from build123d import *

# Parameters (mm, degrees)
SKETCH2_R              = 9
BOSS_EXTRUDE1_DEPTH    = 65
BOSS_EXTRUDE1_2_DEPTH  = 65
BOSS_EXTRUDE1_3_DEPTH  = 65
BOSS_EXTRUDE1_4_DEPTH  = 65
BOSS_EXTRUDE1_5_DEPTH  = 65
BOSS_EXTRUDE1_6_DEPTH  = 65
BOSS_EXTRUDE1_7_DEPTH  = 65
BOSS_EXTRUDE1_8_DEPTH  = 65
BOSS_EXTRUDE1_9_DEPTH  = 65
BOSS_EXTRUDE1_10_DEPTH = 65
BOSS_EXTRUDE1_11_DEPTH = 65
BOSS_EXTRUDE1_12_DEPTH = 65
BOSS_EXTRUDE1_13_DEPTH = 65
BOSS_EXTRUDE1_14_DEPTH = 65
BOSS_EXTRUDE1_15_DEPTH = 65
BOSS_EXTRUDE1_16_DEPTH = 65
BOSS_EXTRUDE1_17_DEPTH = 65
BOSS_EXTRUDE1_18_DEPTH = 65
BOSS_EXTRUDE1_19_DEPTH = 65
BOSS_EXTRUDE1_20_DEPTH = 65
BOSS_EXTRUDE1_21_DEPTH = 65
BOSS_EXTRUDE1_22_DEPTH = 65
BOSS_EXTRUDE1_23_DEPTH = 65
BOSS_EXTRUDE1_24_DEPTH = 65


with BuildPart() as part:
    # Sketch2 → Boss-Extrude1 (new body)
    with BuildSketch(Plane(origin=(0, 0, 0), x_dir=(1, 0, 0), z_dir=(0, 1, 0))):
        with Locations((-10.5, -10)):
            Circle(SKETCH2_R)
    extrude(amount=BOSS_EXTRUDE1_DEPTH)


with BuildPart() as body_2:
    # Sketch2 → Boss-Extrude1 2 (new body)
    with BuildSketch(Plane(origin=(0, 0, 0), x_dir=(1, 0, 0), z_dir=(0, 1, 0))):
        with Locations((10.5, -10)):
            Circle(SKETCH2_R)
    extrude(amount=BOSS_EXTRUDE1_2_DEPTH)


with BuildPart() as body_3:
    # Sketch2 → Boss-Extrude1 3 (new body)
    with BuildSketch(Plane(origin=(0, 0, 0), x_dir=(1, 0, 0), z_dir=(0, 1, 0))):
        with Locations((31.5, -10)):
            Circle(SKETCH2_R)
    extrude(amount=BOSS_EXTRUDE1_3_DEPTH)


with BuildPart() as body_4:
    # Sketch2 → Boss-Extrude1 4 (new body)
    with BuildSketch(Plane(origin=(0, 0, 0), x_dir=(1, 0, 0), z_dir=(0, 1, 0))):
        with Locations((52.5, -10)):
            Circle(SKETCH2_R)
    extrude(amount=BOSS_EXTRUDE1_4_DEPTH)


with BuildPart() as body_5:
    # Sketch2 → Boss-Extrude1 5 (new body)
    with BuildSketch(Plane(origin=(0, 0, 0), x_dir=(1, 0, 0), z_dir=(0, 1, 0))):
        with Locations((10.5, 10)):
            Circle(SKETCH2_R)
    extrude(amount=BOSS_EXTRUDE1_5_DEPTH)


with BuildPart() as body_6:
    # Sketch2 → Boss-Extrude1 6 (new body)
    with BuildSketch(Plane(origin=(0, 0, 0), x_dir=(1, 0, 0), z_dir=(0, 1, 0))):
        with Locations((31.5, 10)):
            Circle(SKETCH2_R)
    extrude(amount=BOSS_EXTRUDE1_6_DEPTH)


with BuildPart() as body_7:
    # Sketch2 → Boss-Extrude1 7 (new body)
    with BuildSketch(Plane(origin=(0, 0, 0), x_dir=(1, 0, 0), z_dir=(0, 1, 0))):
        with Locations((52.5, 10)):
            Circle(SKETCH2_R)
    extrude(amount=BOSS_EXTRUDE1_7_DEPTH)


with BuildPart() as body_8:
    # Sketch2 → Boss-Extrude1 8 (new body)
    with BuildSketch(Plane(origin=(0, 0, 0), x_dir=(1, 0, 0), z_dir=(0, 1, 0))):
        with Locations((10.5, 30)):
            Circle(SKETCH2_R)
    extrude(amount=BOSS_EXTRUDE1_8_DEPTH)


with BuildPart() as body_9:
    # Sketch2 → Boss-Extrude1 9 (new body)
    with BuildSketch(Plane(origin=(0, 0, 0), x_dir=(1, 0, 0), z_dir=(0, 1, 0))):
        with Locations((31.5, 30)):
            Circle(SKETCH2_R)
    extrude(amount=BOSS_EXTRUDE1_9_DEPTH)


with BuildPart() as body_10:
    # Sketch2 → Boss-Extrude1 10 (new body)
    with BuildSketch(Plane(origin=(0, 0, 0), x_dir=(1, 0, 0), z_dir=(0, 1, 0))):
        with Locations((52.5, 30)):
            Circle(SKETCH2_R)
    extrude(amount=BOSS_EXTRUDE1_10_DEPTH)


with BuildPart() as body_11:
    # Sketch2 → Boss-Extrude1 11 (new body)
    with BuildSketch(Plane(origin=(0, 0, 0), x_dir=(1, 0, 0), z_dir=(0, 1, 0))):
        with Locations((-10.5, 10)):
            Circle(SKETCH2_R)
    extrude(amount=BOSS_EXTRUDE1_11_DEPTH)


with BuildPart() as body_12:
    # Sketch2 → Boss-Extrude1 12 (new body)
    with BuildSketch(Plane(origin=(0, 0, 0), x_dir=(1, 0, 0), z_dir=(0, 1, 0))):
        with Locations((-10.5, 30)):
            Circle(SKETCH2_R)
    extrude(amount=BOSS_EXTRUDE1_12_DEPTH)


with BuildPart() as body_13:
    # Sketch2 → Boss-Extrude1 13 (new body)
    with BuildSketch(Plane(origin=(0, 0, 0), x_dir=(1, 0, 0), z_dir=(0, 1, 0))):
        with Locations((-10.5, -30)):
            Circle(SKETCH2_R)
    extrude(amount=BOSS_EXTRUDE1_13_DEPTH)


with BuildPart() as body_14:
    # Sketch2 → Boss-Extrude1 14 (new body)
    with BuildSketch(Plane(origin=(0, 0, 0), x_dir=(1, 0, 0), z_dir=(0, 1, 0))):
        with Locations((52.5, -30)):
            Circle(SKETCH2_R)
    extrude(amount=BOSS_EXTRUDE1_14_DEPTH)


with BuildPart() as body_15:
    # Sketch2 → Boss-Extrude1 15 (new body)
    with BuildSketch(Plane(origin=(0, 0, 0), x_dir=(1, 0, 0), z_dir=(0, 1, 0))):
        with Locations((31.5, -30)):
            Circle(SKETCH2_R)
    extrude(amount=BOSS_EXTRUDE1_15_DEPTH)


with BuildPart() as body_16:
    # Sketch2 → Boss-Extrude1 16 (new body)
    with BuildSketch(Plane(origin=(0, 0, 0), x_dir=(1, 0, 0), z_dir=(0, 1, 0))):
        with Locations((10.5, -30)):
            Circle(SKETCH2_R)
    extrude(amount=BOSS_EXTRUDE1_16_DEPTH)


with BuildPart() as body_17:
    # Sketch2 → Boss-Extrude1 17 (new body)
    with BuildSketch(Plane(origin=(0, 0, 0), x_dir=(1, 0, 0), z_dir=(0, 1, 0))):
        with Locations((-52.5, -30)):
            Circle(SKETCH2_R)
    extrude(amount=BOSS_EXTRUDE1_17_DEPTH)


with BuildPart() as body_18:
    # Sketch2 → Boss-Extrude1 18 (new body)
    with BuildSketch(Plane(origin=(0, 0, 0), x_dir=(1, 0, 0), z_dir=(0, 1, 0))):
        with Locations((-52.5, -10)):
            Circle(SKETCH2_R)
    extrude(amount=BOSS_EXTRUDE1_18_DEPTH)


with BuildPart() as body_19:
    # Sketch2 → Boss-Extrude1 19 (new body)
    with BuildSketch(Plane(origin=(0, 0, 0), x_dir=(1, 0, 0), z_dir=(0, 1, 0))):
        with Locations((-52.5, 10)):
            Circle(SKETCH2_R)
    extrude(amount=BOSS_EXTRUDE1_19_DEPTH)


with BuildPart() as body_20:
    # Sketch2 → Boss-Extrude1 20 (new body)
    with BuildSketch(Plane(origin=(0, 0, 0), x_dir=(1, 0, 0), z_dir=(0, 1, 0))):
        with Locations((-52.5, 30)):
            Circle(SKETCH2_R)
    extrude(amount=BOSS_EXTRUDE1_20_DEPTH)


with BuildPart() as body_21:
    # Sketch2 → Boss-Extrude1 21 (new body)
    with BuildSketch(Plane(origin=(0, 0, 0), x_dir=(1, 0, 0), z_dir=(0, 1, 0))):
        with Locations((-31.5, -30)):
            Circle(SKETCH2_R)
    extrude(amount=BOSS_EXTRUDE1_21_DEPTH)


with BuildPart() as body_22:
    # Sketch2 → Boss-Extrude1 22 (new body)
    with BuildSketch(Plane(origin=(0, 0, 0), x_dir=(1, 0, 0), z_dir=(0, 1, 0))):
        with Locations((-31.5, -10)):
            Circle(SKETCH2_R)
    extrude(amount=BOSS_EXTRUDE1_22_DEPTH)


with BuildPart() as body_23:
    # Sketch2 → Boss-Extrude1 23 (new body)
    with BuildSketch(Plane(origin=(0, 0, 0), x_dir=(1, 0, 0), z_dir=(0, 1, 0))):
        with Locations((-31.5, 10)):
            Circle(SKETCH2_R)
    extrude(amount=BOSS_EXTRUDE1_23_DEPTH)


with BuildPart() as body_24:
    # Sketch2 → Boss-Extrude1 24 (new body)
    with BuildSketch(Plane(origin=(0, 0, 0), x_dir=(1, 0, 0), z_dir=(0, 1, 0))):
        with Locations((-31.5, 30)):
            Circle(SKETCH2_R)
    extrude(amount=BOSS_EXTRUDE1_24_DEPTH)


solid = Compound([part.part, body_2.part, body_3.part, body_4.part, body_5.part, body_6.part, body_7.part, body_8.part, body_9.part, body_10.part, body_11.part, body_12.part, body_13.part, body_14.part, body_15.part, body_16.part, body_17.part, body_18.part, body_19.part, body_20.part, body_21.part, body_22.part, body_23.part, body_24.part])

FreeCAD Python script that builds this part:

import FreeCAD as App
import Part
import Sketcher

doc = App.newDocument("Part")
body = doc.addObject("PartDesign::Body", "Body")

sketch1 = doc.addObject("Sketcher::SketchObject", "Sketch")
body.addObject(sketch1)
sketch1.AttachmentSupport = (doc.XZ_Plane, [""])
sketch1.MapMode = "FlatFace"
sketch1.addGeometry(Part.Circle(App.Vector(-10, 10, 0), App.Vector(0, 0, 1), 9), False)
sketch1.addConstraint([
    Sketcher.Constraint("Diameter", 0, 18.0),
    Sketcher.Constraint("DistanceY", -1, 1, 0, 3, 10.0),
    Sketcher.Constraint("DistanceX", 0, 3, -1, 1, 10.5),
])
pad1 = doc.addObject("PartDesign::Pad", "Pad")
body.addObject(pad1)
pad1.Profile = sketch1
pad1.Length = 65
pad1.Reversed = True
body2 = doc.addObject("PartDesign::Body", "Body001")

sketch2 = doc.addObject("Sketcher::SketchObject", "Sketch001")
body2.addObject(sketch2)
sketch2.AttachmentSupport = (doc.getObject("XZ_Plane001"), [""])
sketch2.MapMode = "FlatFace"
sketch2.addGeometry(Part.Circle(App.Vector(10, 10, 0), App.Vector(0, 0, 1), 9), False)
sketch2.addConstraint([
    Sketcher.Constraint("Diameter", 0, 18.0),
    Sketcher.Constraint("DistanceY", -1, 1, 0, 3, 10.0),
    Sketcher.Constraint("DistanceX", -1, 1, 0, 3, 10.5),
])
pad2 = doc.addObject("PartDesign::Pad", "Pad001")
body2.addObject(pad2)
pad2.Profile = sketch2
pad2.Length = 65
pad2.Reversed = True
body3 = doc.addObject("PartDesign::Body", "Body002")

sketch3 = doc.addObject("Sketcher::SketchObject", "Sketch002")
body3.addObject(sketch3)
sketch3.AttachmentSupport = (doc.getObject("XZ_Plane002"), [""])
sketch3.MapMode = "FlatFace"
sketch3.addGeometry(Part.Circle(App.Vector(32, 10, 0), App.Vector(0, 0, 1), 9), False)
sketch3.addConstraint([
    Sketcher.Constraint("Diameter", 0, 18.0),
    Sketcher.Constraint("DistanceY", -1, 1, 0, 3, 10.0),
    Sketcher.Constraint("DistanceX", -1, 1, 0, 3, 31.5),
])
pad3 = doc.addObject("PartDesign::Pad", "Pad002")
body3.addObject(pad3)
pad3.Profile = sketch3
pad3.Length = 65
pad3.Reversed = True
body4 = doc.addObject("PartDesign::Body", "Body003")

sketch4 = doc.addObject("Sketcher::SketchObject", "Sketch003")
body4.addObject(sketch4)
sketch4.AttachmentSupport = (doc.getObject("XZ_Plane003"), [""])
sketch4.MapMode = "FlatFace"
sketch4.addGeometry(Part.Circle(App.Vector(52, 10, 0), App.Vector(0, 0, 1), 9), False)
sketch4.addConstraint([
    Sketcher.Constraint("Diameter", 0, 18.0),
    Sketcher.Constraint("DistanceY", -1, 1, 0, 3, 10.0),
    Sketcher.Constraint("DistanceX", -1, 1, 0, 3, 52.5),
])
pad4 = doc.addObject("PartDesign::Pad", "Pad003")
body4.addObject(pad4)
pad4.Profile = sketch4
pad4.Length = 65
pad4.Reversed = True
body5 = doc.addObject("PartDesign::Body", "Body004")

sketch5 = doc.addObject("Sketcher::SketchObject", "Sketch004")
body5.addObject(sketch5)
sketch5.AttachmentSupport = (doc.getObject("XZ_Plane004"), [""])
sketch5.MapMode = "FlatFace"
sketch5.addGeometry(Part.Circle(App.Vector(10, -10, 0), App.Vector(0, 0, 1), 9), False)
sketch5.addConstraint([
    Sketcher.Constraint("Diameter", 0, 18.0),
    Sketcher.Constraint("DistanceY", 0, 3, -1, 1, 10.0),
    Sketcher.Constraint("DistanceX", -1, 1, 0, 3, 10.5),
])
pad5 = doc.addObject("PartDesign::Pad", "Pad004")
body5.addObject(pad5)
pad5.Profile = sketch5
pad5.Length = 65
pad5.Reversed = True
body6 = doc.addObject("PartDesign::Body", "Body005")

sketch6 = doc.addObject("Sketcher::SketchObject", "Sketch005")
body6.addObject(sketch6)
sketch6.AttachmentSupport = (doc.getObject("XZ_Plane005"), [""])
sketch6.MapMode = "FlatFace"
sketch6.addGeometry(Part.Circle(App.Vector(32, -10, 0), App.Vector(0, 0, 1), 9), False)
sketch6.addConstraint([
    Sketcher.Constraint("Diameter", 0, 18.0),
    Sketcher.Constraint("DistanceY", 0, 3, -1, 1, 10.0),
    Sketcher.Constraint("DistanceX", -1, 1, 0, 3, 31.5),
])
pad6 = doc.addObject("PartDesign::Pad", "Pad005")
body6.addObject(pad6)
pad6.Profile = sketch6
pad6.Length = 65
pad6.Reversed = True
body7 = doc.addObject("PartDesign::Body", "Body006")

sketch7 = doc.addObject("Sketcher::SketchObject", "Sketch006")
body7.addObject(sketch7)
sketch7.AttachmentSupport = (doc.getObject("XZ_Plane006"), [""])
sketch7.MapMode = "FlatFace"
sketch7.addGeometry(Part.Circle(App.Vector(52, -10, 0), App.Vector(0, 0, 1), 9), False)
sketch7.addConstraint([
    Sketcher.Constraint("Diameter", 0, 18.0),
    Sketcher.Constraint("DistanceY", 0, 3, -1, 1, 10.0),
    Sketcher.Constraint("DistanceX", -1, 1, 0, 3, 52.5),
])
pad7 = doc.addObject("PartDesign::Pad", "Pad006")
body7.addObject(pad7)
pad7.Profile = sketch7
pad7.Length = 65
pad7.Reversed = True
body8 = doc.addObject("PartDesign::Body", "Body007")

sketch8 = doc.addObject("Sketcher::SketchObject", "Sketch007")
body8.addObject(sketch8)
sketch8.AttachmentSupport = (doc.getObject("XZ_Plane007"), [""])
sketch8.MapMode = "FlatFace"
sketch8.addGeometry(Part.Circle(App.Vector(10, -30, 0), App.Vector(0, 0, 1), 9), False)
sketch8.addConstraint([
    Sketcher.Constraint("Diameter", 0, 18.0),
    Sketcher.Constraint("DistanceY", 0, 3, -1, 1, 30.0),
    Sketcher.Constraint("DistanceX", -1, 1, 0, 3, 10.5),
])
pad8 = doc.addObject("PartDesign::Pad", "Pad007")
body8.addObject(pad8)
pad8.Profile = sketch8
pad8.Length = 65
pad8.Reversed = True
body9 = doc.addObject("PartDesign::Body", "Body008")

sketch9 = doc.addObject("Sketcher::SketchObject", "Sketch008")
body9.addObject(sketch9)
sketch9.AttachmentSupport = (doc.getObject("XZ_Plane008"), [""])
sketch9.MapMode = "FlatFace"
sketch9.addGeometry(Part.Circle(App.Vector(32, -30, 0), App.Vector(0, 0, 1), 9), False)
sketch9.addConstraint([
    Sketcher.Constraint("Diameter", 0, 18.0),
    Sketcher.Constraint("DistanceY", 0, 3, -1, 1, 30.0),
    Sketcher.Constraint("DistanceX", -1, 1, 0, 3, 31.5),
])
pad9 = doc.addObject("PartDesign::Pad", "Pad008")
body9.addObject(pad9)
pad9.Profile = sketch9
pad9.Length = 65
pad9.Reversed = True
body10 = doc.addObject("PartDesign::Body", "Body009")

sketch10 = doc.addObject("Sketcher::SketchObject", "Sketch009")
body10.addObject(sketch10)
sketch10.AttachmentSupport = (doc.getObject("XZ_Plane009"), [""])
sketch10.MapMode = "FlatFace"
sketch10.addGeometry(Part.Circle(App.Vector(52, -30, 0), App.Vector(0, 0, 1), 9), False)
sketch10.addConstraint([
    Sketcher.Constraint("Diameter", 0, 18.0),
    Sketcher.Constraint("DistanceY", 0, 3, -1, 1, 30.0),
    Sketcher.Constraint("DistanceX", -1, 1, 0, 3, 52.5),
])
pad10 = doc.addObject("PartDesign::Pad", "Pad009")
body10.addObject(pad10)
pad10.Profile = sketch10
pad10.Length = 65
pad10.Reversed = True
body11 = doc.addObject("PartDesign::Body", "Body010")

sketch11 = doc.addObject("Sketcher::SketchObject", "Sketch010")
body11.addObject(sketch11)
sketch11.AttachmentSupport = (doc.getObject("XZ_Plane010"), [""])
sketch11.MapMode = "FlatFace"
sketch11.addGeometry(Part.Circle(App.Vector(-10, -10, 0), App.Vector(0, 0, 1), 9), False)
sketch11.addConstraint([
    Sketcher.Constraint("Diameter", 0, 18.0),
    Sketcher.Constraint("DistanceY", 0, 3, -1, 1, 10.0),
    Sketcher.Constraint("DistanceX", 0, 3, -1, 1, 10.5),
])
pad11 = doc.addObject("PartDesign::Pad", "Pad010")
body11.addObject(pad11)
pad11.Profile = sketch11
pad11.Length = 65
pad11.Reversed = True
body12 = doc.addObject("PartDesign::Body", "Body011")

sketch12 = doc.addObject("Sketcher::SketchObject", "Sketch011")
body12.addObject(sketch12)
sketch12.AttachmentSupport = (doc.getObject("XZ_Plane011"), [""])
sketch12.MapMode = "FlatFace"
sketch12.addGeometry(Part.Circle(App.Vector(-10, -30, 0), App.Vector(0, 0, 1), 9), False)
sketch12.addConstraint([
    Sketcher.Constraint("Diameter", 0, 18.0),
    Sketcher.Constraint("DistanceY", 0, 3, -1, 1, 30.0),
    Sketcher.Constraint("DistanceX", 0, 3, -1, 1, 10.5),
])
pad12 = doc.addObject("PartDesign::Pad", "Pad011")
body12.addObject(pad12)
pad12.Profile = sketch12
pad12.Length = 65
pad12.Reversed = True
body13 = doc.addObject("PartDesign::Body", "Body012")

sketch13 = doc.addObject("Sketcher::SketchObject", "Sketch012")
body13.addObject(sketch13)
sketch13.AttachmentSupport = (doc.getObject("XZ_Plane012"), [""])
sketch13.MapMode = "FlatFace"
sketch13.addGeometry(Part.Circle(App.Vector(-10, 30, 0), App.Vector(0, 0, 1), 9), False)
sketch13.addConstraint([
    Sketcher.Constraint("Diameter", 0, 18.0),
    Sketcher.Constraint("DistanceY", -1, 1, 0, 3, 30.0),
    Sketcher.Constraint("DistanceX", 0, 3, -1, 1, 10.5),
])
pad13 = doc.addObject("PartDesign::Pad", "Pad012")
body13.addObject(pad13)
pad13.Profile = sketch13
pad13.Length = 65
pad13.Reversed = True
body14 = doc.addObject("PartDesign::Body", "Body013")

sketch14 = doc.addObject("Sketcher::SketchObject", "Sketch013")
body14.addObject(sketch14)
sketch14.AttachmentSupport = (doc.getObject("XZ_Plane013"), [""])
sketch14.MapMode = "FlatFace"
sketch14.addGeometry(Part.Circle(App.Vector(52, 30, 0), App.Vector(0, 0, 1), 9), False)
sketch14.addConstraint([
    Sketcher.Constraint("Diameter", 0, 18.0),
    Sketcher.Constraint("DistanceY", -1, 1, 0, 3, 30.0),
    Sketcher.Constraint("DistanceX", -1, 1, 0, 3, 52.5),
])
pad14 = doc.addObject("PartDesign::Pad", "Pad013")
body14.addObject(pad14)
pad14.Profile = sketch14
pad14.Length = 65
pad14.Reversed = True
body15 = doc.addObject("PartDesign::Body", "Body014")

sketch15 = doc.addObject("Sketcher::SketchObject", "Sketch014")
body15.addObject(sketch15)
sketch15.AttachmentSupport = (doc.getObject("XZ_Plane014"), [""])
sketch15.MapMode = "FlatFace"
sketch15.addGeometry(Part.Circle(App.Vector(32, 30, 0), App.Vector(0, 0, 1), 9), False)
sketch15.addConstraint([
    Sketcher.Constraint("Diameter", 0, 18.0),
    Sketcher.Constraint("DistanceY", -1, 1, 0, 3, 30.0),
    Sketcher.Constraint("DistanceX", -1, 1, 0, 3, 31.5),
])
pad15 = doc.addObject("PartDesign::Pad", "Pad014")
body15.addObject(pad15)
pad15.Profile = sketch15
pad15.Length = 65
pad15.Reversed = True
body16 = doc.addObject("PartDesign::Body", "Body015")

sketch16 = doc.addObject("Sketcher::SketchObject", "Sketch015")
body16.addObject(sketch16)
sketch16.AttachmentSupport = (doc.getObject("XZ_Plane015"), [""])
sketch16.MapMode = "FlatFace"
sketch16.addGeometry(Part.Circle(App.Vector(10, 30, 0), App.Vector(0, 0, 1), 9), False)
sketch16.addConstraint([
    Sketcher.Constraint("Diameter", 0, 18.0),
    Sketcher.Constraint("DistanceY", -1, 1, 0, 3, 30.0),
    Sketcher.Constraint("DistanceX", -1, 1, 0, 3, 10.5),
])
pad16 = doc.addObject("PartDesign::Pad", "Pad015")
body16.addObject(pad16)
pad16.Profile = sketch16
pad16.Length = 65
pad16.Reversed = True
body17 = doc.addObject("PartDesign::Body", "Body016")

sketch17 = doc.addObject("Sketcher::SketchObject", "Sketch016")
body17.addObject(sketch17)
sketch17.AttachmentSupport = (doc.getObject("XZ_Plane016"), [""])
sketch17.MapMode = "FlatFace"
sketch17.addGeometry(Part.Circle(App.Vector(-52, 30, 0), App.Vector(0, 0, 1), 9), False)
sketch17.addConstraint([
    Sketcher.Constraint("Diameter", 0, 18.0),
    Sketcher.Constraint("DistanceY", -1, 1, 0, 3, 30.0),
    Sketcher.Constraint("DistanceX", 0, 3, -1, 1, 52.5),
])
pad17 = doc.addObject("PartDesign::Pad", "Pad016")
body17.addObject(pad17)
pad17.Profile = sketch17
pad17.Length = 65
pad17.Reversed = True
body18 = doc.addObject("PartDesign::Body", "Body017")

sketch18 = doc.addObject("Sketcher::SketchObject", "Sketch017")
body18.addObject(sketch18)
sketch18.AttachmentSupport = (doc.getObject("XZ_Plane017"), [""])
sketch18.MapMode = "FlatFace"
sketch18.addGeometry(Part.Circle(App.Vector(-52, 10, 0), App.Vector(0, 0, 1), 9), False)
sketch18.addConstraint([
    Sketcher.Constraint("Diameter", 0, 18.0),
    Sketcher.Constraint("DistanceY", -1, 1, 0, 3, 10.0),
    Sketcher.Constraint("DistanceX", 0, 3, -1, 1, 52.5),
])
pad18 = doc.addObject("PartDesign::Pad", "Pad017")
body18.addObject(pad18)
pad18.Profile = sketch18
pad18.Length = 65
pad18.Reversed = True
body19 = doc.addObject("PartDesign::Body", "Body018")

sketch19 = doc.addObject("Sketcher::SketchObject", "Sketch018")
body19.addObject(sketch19)
sketch19.AttachmentSupport = (doc.getObject("XZ_Plane018"), [""])
sketch19.MapMode = "FlatFace"
sketch19.addGeometry(Part.Circle(App.Vector(-52, -10, 0), App.Vector(0, 0, 1), 9), False)
sketch19.addConstraint([
    Sketcher.Constraint("Diameter", 0, 18.0),
    Sketcher.Constraint("DistanceY", 0, 3, -1, 1, 10.0),
    Sketcher.Constraint("DistanceX", 0, 3, -1, 1, 52.5),
])
pad19 = doc.addObject("PartDesign::Pad", "Pad018")
body19.addObject(pad19)
pad19.Profile = sketch19
pad19.Length = 65
pad19.Reversed = True
body20 = doc.addObject("PartDesign::Body", "Body019")

sketch20 = doc.addObject("Sketcher::SketchObject", "Sketch019")
body20.addObject(sketch20)
sketch20.AttachmentSupport = (doc.getObject("XZ_Plane019"), [""])
sketch20.MapMode = "FlatFace"
sketch20.addGeometry(Part.Circle(App.Vector(-52, -30, 0), App.Vector(0, 0, 1), 9), False)
sketch20.addConstraint([
    Sketcher.Constraint("Diameter", 0, 18.0),
    Sketcher.Constraint("DistanceY", 0, 3, -1, 1, 30.0),
    Sketcher.Constraint("DistanceX", 0, 3, -1, 1, 52.5),
])
pad20 = doc.addObject("PartDesign::Pad", "Pad019")
body20.addObject(pad20)
pad20.Profile = sketch20
pad20.Length = 65
pad20.Reversed = True
body21 = doc.addObject("PartDesign::Body", "Body020")

sketch21 = doc.addObject("Sketcher::SketchObject", "Sketch020")
body21.addObject(sketch21)
sketch21.AttachmentSupport = (doc.getObject("XZ_Plane020"), [""])
sketch21.MapMode = "FlatFace"
sketch21.addGeometry(Part.Circle(App.Vector(-32, 30, 0), App.Vector(0, 0, 1), 9), False)
sketch21.addConstraint([
    Sketcher.Constraint("Diameter", 0, 18.0),
    Sketcher.Constraint("DistanceY", -1, 1, 0, 3, 30.0),
    Sketcher.Constraint("DistanceX", 0, 3, -1, 1, 31.5),
])
pad21 = doc.addObject("PartDesign::Pad", "Pad020")
body21.addObject(pad21)
pad21.Profile = sketch21
pad21.Length = 65
pad21.Reversed = True
body22 = doc.addObject("PartDesign::Body", "Body021")

sketch22 = doc.addObject("Sketcher::SketchObject", "Sketch021")
body22.addObject(sketch22)
sketch22.AttachmentSupport = (doc.getObject("XZ_Plane021"), [""])
sketch22.MapMode = "FlatFace"
sketch22.addGeometry(Part.Circle(App.Vector(-32, 10, 0), App.Vector(0, 0, 1), 9), False)
sketch22.addConstraint([
    Sketcher.Constraint("Diameter", 0, 18.0),
    Sketcher.Constraint("DistanceY", -1, 1, 0, 3, 10.0),
    Sketcher.Constraint("DistanceX", 0, 3, -1, 1, 31.5),
])
pad22 = doc.addObject("PartDesign::Pad", "Pad021")
body22.addObject(pad22)
pad22.Profile = sketch22
pad22.Length = 65
pad22.Reversed = True
body23 = doc.addObject("PartDesign::Body", "Body022")

sketch23 = doc.addObject("Sketcher::SketchObject", "Sketch022")
body23.addObject(sketch23)
sketch23.AttachmentSupport = (doc.getObject("XZ_Plane022"), [""])
sketch23.MapMode = "FlatFace"
sketch23.addGeometry(Part.Circle(App.Vector(-32, -10, 0), App.Vector(0, 0, 1), 9), False)
sketch23.addConstraint([
    Sketcher.Constraint("Diameter", 0, 18.0),
    Sketcher.Constraint("DistanceY", 0, 3, -1, 1, 10.0),
    Sketcher.Constraint("DistanceX", 0, 3, -1, 1, 31.5),
])
pad23 = doc.addObject("PartDesign::Pad", "Pad022")
body23.addObject(pad23)
pad23.Profile = sketch23
pad23.Length = 65
pad23.Reversed = True
body24 = doc.addObject("PartDesign::Body", "Body023")

sketch24 = doc.addObject("Sketcher::SketchObject", "Sketch023")
body24.addObject(sketch24)
sketch24.AttachmentSupport = (doc.getObject("XZ_Plane023"), [""])
sketch24.MapMode = "FlatFace"
sketch24.addGeometry(Part.Circle(App.Vector(-32, -30, 0), App.Vector(0, 0, 1), 9), False)
sketch24.addConstraint([
    Sketcher.Constraint("Diameter", 0, 18.0),
    Sketcher.Constraint("DistanceY", 0, 3, -1, 1, 30.0),
    Sketcher.Constraint("DistanceX", 0, 3, -1, 1, 31.5),
])
pad24 = doc.addObject("PartDesign::Pad", "Pad023")
body24.addObject(pad24)
pad24.Profile = sketch24
pad24.Length = 65
pad24.Reversed = True

doc.recompute()
